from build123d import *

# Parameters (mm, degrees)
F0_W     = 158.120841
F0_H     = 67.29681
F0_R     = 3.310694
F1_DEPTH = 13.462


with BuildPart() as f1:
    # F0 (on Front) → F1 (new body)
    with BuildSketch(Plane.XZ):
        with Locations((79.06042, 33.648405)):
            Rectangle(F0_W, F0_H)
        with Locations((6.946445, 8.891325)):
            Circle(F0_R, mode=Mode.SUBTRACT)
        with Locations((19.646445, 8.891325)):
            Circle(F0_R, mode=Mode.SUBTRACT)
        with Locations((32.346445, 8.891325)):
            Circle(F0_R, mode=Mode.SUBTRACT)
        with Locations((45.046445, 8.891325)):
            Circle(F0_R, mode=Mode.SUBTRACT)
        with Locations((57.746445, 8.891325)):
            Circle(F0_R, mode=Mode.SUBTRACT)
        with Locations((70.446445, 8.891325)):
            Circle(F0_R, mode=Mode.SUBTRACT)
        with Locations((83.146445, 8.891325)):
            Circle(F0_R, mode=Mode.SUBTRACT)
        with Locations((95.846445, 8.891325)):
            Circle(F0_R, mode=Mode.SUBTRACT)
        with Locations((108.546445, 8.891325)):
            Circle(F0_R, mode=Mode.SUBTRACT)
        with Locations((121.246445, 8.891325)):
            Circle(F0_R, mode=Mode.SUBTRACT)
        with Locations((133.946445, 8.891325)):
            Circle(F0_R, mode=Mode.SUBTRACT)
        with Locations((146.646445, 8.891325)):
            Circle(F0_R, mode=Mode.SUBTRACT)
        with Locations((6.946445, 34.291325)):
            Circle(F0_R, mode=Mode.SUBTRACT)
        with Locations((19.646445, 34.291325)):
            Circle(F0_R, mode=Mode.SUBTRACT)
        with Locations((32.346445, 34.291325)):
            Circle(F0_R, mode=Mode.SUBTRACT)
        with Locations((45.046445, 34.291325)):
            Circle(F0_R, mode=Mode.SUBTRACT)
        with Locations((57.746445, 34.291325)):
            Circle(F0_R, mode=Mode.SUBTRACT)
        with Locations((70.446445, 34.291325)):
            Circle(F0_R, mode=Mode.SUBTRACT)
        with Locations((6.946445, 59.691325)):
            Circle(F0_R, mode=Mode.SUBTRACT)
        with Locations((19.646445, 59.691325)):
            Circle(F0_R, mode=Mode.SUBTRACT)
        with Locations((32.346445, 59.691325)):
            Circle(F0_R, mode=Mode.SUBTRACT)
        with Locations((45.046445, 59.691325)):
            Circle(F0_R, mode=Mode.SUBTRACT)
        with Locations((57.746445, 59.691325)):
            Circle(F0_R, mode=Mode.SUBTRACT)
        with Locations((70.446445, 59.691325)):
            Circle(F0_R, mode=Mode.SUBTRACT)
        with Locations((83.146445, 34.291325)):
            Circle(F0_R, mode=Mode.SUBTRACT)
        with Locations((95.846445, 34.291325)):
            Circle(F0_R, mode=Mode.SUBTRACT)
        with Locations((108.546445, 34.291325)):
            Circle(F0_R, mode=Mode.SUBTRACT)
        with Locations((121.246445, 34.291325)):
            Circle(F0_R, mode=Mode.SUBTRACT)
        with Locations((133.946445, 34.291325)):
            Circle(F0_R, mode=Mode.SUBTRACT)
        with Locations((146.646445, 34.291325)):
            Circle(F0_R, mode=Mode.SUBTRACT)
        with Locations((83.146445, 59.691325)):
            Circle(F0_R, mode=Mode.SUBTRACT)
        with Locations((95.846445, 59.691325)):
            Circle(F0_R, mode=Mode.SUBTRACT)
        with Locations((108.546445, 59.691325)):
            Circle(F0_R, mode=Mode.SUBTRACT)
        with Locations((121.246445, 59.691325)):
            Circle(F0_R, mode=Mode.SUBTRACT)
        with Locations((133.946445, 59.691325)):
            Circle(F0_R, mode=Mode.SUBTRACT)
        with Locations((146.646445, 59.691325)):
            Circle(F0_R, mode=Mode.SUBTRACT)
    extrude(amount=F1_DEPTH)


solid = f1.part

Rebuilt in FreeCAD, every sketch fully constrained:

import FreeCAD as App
import Part
import Sketcher

V = App.Vector
Q = App.Units.Quantity


def add_polygon(sketch, points):
    """Adds a closed chain of lines whose ends are joined by coincident constraints."""
    first, n = sketch.GeometryCount, len(points)
    for a, b in zip(points, points[1:] + points[:1]):
        sketch.addGeometry(Part.LineSegment(App.Vector(*a, 0), App.Vector(*b, 0)), False)
    for i in range(n):
        sketch.addConstraint(Sketcher.Constraint("Coincident", first + i, 2, first + (i + 1) % n, 1))

doc = App.newDocument("Part")
params = doc.addObject("Spreadsheet::Sheet", "Params")
for row, (alias, value) in enumerate([
    ("pad1_length", "0.53 in"),
], start=1):
    params.set(f"A{row}", alias)
    params.set(f"B{row}", "=" + value)
    params.setAlias(f"B{row}", alias)

body = doc.addObject("PartDesign::Body", "Body")

sketch1 = doc.addObject("Sketcher::SketchObject", "Sketch")
body.addObject(sketch1)
sketch1.AttachmentSupport = (doc.XZ_Plane, [""])
sketch1.MapMode = "FlatFace"
add_polygon(sketch1, [(0, 67.29681), (0, 0), (158.120841, 0), (158.120841, 67.29681)])
sketch1.addGeometry(Part.Circle(V(6.946445, 8.891325, 0), V(0, 0, 1), 3.310694), False)
sketch1.addGeometry(Part.Circle(V(19.646445, 8.891325, 0), V(0, 0, 1), 3.310694), False)
sketch1.addGeometry(Part.Circle(V(32.346445, 8.891325, 0), V(0, 0, 1), 3.310694), False)
sketch1.addGeometry(Part.Circle(V(45.046445, 8.891325, 0), V(0, 0, 1), 3.310694), False)
sketch1.addGeometry(Part.Circle(V(57.746445, 8.891325, 0), V(0, 0, 1), 3.310694), False)
sketch1.addGeometry(Part.Circle(V(70.446445, 8.891325, 0), V(0, 0, 1), 3.310694), False)
sketch1.addGeometry(Part.Circle(V(83.146445, 8.891325, 0), V(0, 0, 1), 3.310694), False)
sketch1.addGeometry(Part.Circle(V(95.846445, 8.891325, 0), V(0, 0, 1), 3.310694), False)
sketch1.addGeometry(Part.Circle(V(108.546445, 8.891325, 0), V(0, 0, 1), 3.310694), False)
sketch1.addGeometry(Part.Circle(V(121.246445, 8.891325, 0), V(0, 0, 1), 3.310694), False)
sketch1.addGeometry(Part.Circle(V(133.946445, 8.891325, 0), V(0, 0, 1), 3.310694), False)
sketch1.addGeometry(Part.Circle(V(146.646445, 8.891325, 0), V(0, 0, 1), 3.310694), False)
sketch1.addGeometry(Part.Circle(V(6.946445, 34.291325, 0), V(0, 0, 1), 3.310694), False)
sketch1.addGeometry(Part.Circle(V(19.646445, 34.291325, 0), V(0, 0, 1), 3.310694), False)
sketch1.addGeometry(Part.Circle(V(32.346445, 34.291325, 0), V(0, 0, 1), 3.310694), False)
sketch1.addGeometry(Part.Circle(V(45.046445, 34.291325, 0), V(0, 0, 1), 3.310694), False)
sketch1.addGeometry(Part.Circle(V(57.746445, 34.291325, 0), V(0, 0, 1), 3.310694), False)
sketch1.addGeometry(Part.Circle(V(70.446445, 34.291325, 0), V(0, 0, 1), 3.310694), False)
sketch1.addGeometry(Part.Circle(V(6.946445, 59.691325, 0), V(0, 0, 1), 3.310694), False)
sketch1.addGeometry(Part.Circle(V(19.646445, 59.691325, 0), V(0, 0, 1), 3.310694), False)
sketch1.addGeometry(Part.Circle(V(32.346445, 59.691325, 0), V(0, 0, 1), 3.310694), False)
sketch1.addGeometry(Part.Circle(V(45.046445, 59.691325, 0), V(0, 0, 1), 3.310694), False)
sketch1.addGeometry(Part.Circle(V(57.746445, 59.691325, 0), V(0, 0, 1), 3.310694), False)
sketch1.addGeometry(Part.Circle(V(70.446445, 59.691325, 0), V(0, 0, 1), 3.310694), False)
sketch1.addGeometry(Part.Circle(V(83.146445, 34.291325, 0), V(0, 0, 1), 3.310694), False)
sketch1.addGeometry(Part.Circle(V(95.846445, 34.291325, 0), V(0, 0, 1), 3.310694), False)
sketch1.addGeometry(Part.Circle(V(108.546445, 34.291325, 0), V(0, 0, 1), 3.310694), False)
sketch1.addGeometry(Part.Circle(V(121.246445, 34.291325, 0), V(0, 0, 1), 3.310694), False)
sketch1.addGeometry(Part.Circle(V(133.946445, 34.291325, 0), V(0, 0, 1), 3.310694), False)
sketch1.addGeometry(Part.Circle(V(146.646445, 34.291325, 0), V(0, 0, 1), 3.310694), False)
sketch1.addGeometry(Part.Circle(V(83.146445, 59.691325, 0), V(0, 0, 1), 3.310694), False)
sketch1.addGeometry(Part.Circle(V(95.846445, 59.691325, 0), V(0, 0, 1), 3.310694), False)
sketch1.addGeometry(Part.Circle(V(108.546445, 59.691325, 0), V(0, 0, 1), 3.310694), False)
sketch1.addGeometry(Part.Circle(V(121.246445, 59.691325, 0), V(0, 0, 1), 3.310694), False)
sketch1.addGeometry(Part.Circle(V(133.946445, 59.691325, 0), V(0, 0, 1), 3.310694), False)
sketch1.addGeometry(Part.Circle(V(146.646445, 59.691325, 0), V(0, 0, 1), 3.310694), False)
sketch1.addConstraint([
    Sketcher.Constraint("Vertical", 0),
    Sketcher.Constraint("Horizontal", 1),
    Sketcher.Constraint("Vertical", 2),
    Sketcher.Constraint("Horizontal", 3),
    Sketcher.Constraint("Coincident", 0, 2, -1, 1),
    Sketcher.Constraint("Equal", 4, 5),
    Sketcher.Constraint("Equal", 5, 6),
    Sketcher.Constraint("Equal", 6, 7),
    Sketcher.Constraint("Equal", 7, 8),
    Sketcher.Constraint("Equal", 8, 9),
    Sketcher.Constraint("Equal", 9, 10),
    Sketcher.Constraint("Equal", 10, 11),
    Sketcher.Constraint("Equal", 11, 12),
    Sketcher.Constraint("Equal", 12, 13),
    Sketcher.Constraint("Equal", 13, 14),
    Sketcher.Constraint("Equal", 14, 15),
    Sketcher.Constraint("Equal", 15, 16),
    Sketcher.Constraint("Equal", 16, 17),
    Sketcher.Constraint("Equal", 17, 18),
    Sketcher.Constraint("Equal", 18, 19),
    Sketcher.Constraint("Equal", 19, 20),
    Sketcher.Constraint("Equal", 20, 21),
    Sketcher.Constraint("Equal", 21, 22),
    Sketcher.Constraint("Equal", 22, 23),
    Sketcher.Constraint("Equal", 23, 24),
    Sketcher.Constraint("Equal", 24, 25),
    Sketcher.Constraint("Equal", 25, 26),
    Sketcher.Constraint("Equal", 26, 27),
    Sketcher.Constraint("Equal", 27, 28),
    Sketcher.Constraint("Equal", 28, 29),
    Sketcher.Constraint("Equal", 29, 30),
    Sketcher.Constraint("Equal", 30, 31),
    Sketcher.Constraint("Equal", 31, 32),
    Sketcher.Constraint("Equal", 32, 33),
    Sketcher.Constraint("Equal", 33, 34),
    Sketcher.Constraint("Equal", 34, 35),
    Sketcher.Constraint("Equal", 35, 36),
    Sketcher.Constraint("Equal", 36, 37),
    Sketcher.Constraint("Equal", 37, 38),
    Sketcher.Constraint("Equal", 38, 39),
    Sketcher.Constraint("Horizontal", 4, 3, 5, 3),
    Sketcher.Constraint("Horizontal", 5, 3, 6, 3),
    Sketcher.Constraint("Horizontal", 6, 3, 7, 3),
    Sketcher.Constraint("Horizontal", 7, 3, 8, 3),
    Sketcher.Constraint("Horizontal", 8, 3, 9, 3),
    Sketcher.Constraint("Horizontal", 9, 3, 10, 3),
    Sketcher.Constraint("Horizontal", 10, 3, 11, 3),
    Sketcher.Constraint("Horizontal", 11, 3, 12, 3),
    Sketcher.Constraint("Horizontal", 12, 3, 13, 3),
    Sketcher.Constraint("Horizontal", 13, 3, 14, 3),
    Sketcher.Constraint("Horizontal", 14, 3, 15, 3),
    Sketcher.Constraint("Horizontal", 16, 3, 17, 3),
    Sketcher.Constraint("Horizontal", 17, 3, 18, 3),
    Sketcher.Constraint("Horizontal", 18, 3, 19, 3),
    Sketcher.Constraint("Horizontal", 19, 3, 20, 3),
    Sketcher.Constraint("Horizontal", 20, 3, 21, 3),
    Sketcher.Constraint("Horizontal", 22, 3, 23, 3),
    Sketcher.Constraint("Horizontal", 23, 3, 24, 3),
    Sketcher.Constraint("Horizontal", 24, 3, 25, 3),
    Sketcher.Constraint("Horizontal", 25, 3, 26, 3),
    Sketcher.Constraint("Horizontal", 26, 3, 27, 3),
    Sketcher.Constraint("Horizontal", 21, 3, 28, 3),
    Sketcher.Constraint("Horizontal", 28, 3, 29, 3),
    Sketcher.Constraint("Horizontal", 29, 3, 30, 3),
    Sketcher.Constraint("Horizontal", 30, 3, 31, 3),
    Sketcher.Constraint("Horizontal", 31, 3, 32, 3),
    Sketcher.Constraint("Horizontal", 32, 3, 33, 3),
    Sketcher.Constraint("Horizontal", 27, 3, 34, 3),
    Sketcher.Constraint("Horizontal", 34, 3, 35, 3),
    Sketcher.Constraint("Horizontal", 35, 3, 36, 3),
    Sketcher.Constraint("Horizontal", 36, 3, 37, 3),
    Sketcher.Constraint("Horizontal", 37, 3, 38, 3),
    Sketcher.Constraint("Horizontal", 38, 3, 39, 3),
    Sketcher.Constraint("Vertical", 4, 3, 16, 3),
    Sketcher.Constraint("Vertical", 5, 3, 17, 3),
    Sketcher.Constraint("Vertical", 6, 3, 18, 3),
    Sketcher.Constraint("Vertical", 7, 3, 19, 3),
    Sketcher.Constraint("Vertical", 8, 3, 20, 3),
    Sketcher.Constraint("Vertical", 9, 3, 21, 3),
    Sketcher.Constraint("Vertical", 16, 3, 22, 3),
    Sketcher.Constraint("Vertical", 17, 3, 23, 3),
    Sketcher.Constraint("Vertical", 18, 3, 24, 3),
    Sketcher.Constraint("Vertical", 19, 3, 25, 3),
    Sketcher.Constraint("Vertical", 20, 3, 26, 3),
    Sketcher.Constraint("Vertical", 21, 3, 27, 3),
    Sketcher.Constraint("Vertical", 10, 3, 28, 3),
    Sketcher.Constraint("Vertical", 11, 3, 29, 3),
    Sketcher.Constraint("Vertical", 12, 3, 30, 3),
    Sketcher.Constraint("Vertical", 13, 3, 31, 3),
    Sketcher.Constraint("Vertical", 14, 3, 32, 3),
    Sketcher.Constraint("Vertical", 15, 3, 33, 3),
    Sketcher.Constraint("Vertical", 28, 3, 34, 3),
    Sketcher.Constraint("Vertical", 29, 3, 35, 3),
    Sketcher.Constraint("Vertical", 30, 3, 36, 3),
    Sketcher.Constraint("Vertical", 31, 3, 37, 3),
    Sketcher.Constraint("Vertical", 32, 3, 38, 3),
    Sketcher.Constraint("Vertical", 33, 3, 39, 3),
    Sketcher.Constraint("DistanceX", 4, 3, 6, 3, Q("1 in")),
    Sketcher.Constraint("DistanceX", 5, 3, 7, 3, Q("1 in")),
    Sketcher.Constraint("DistanceX", 6, 3, 8, 3, Q("1 in")),
    Sketcher.Constraint("DistanceX", 7, 3, 9, 3, Q("1 in")),
    Sketcher.Constraint("DistanceX", 8, 3, 10, 3, Q("1 in")),
    Sketcher.Constraint("DistanceX", 9, 3, 11, 3, Q("1 in")),
    Sketcher.Constraint("DistanceX", 10, 3, 12, 3, Q("1 in")),
    Sketcher.Constraint("DistanceX", 11, 3, 13, 3, Q("1 in")),
    Sketcher.Constraint("DistanceX", 12, 3, 14, 3, Q("1 in")),
    Sketcher.Constraint("DistanceX", 13, 3, 15, 3, Q("1 in")),
    Sketcher.Constraint("DistanceY", 4, 3, 16, 3, Q("1 in")),
    Sketcher.Constraint("DistanceY", 16, 3, 22, 3, Q("1 in")),
    Sketcher.Constraint("DistanceX", 4, 3, 5, 3, Q("0.5 in")),
    Sketcher.Constraint("Diameter", 4, 6.621388),
    Sketcher.Constraint("DistanceX", 1, 1, 1, 2, 158.120841),
    Sketcher.Constraint("DistanceY", 0, 2, 0, 1, 67.29681),
    Sketcher.Constraint("DistanceX", -1, 1, 4, 3, 6.946445),
    Sketcher.Constraint("DistanceY", -1, 1, 4, 3, 8.891325),
])
pad1 = doc.addObject("PartDesign::Pad", "Pad")
body.addObject(pad1)
pad1.Profile = sketch1
pad1.setExpression("Length", "Params.pad1_length")

doc.recompute()
